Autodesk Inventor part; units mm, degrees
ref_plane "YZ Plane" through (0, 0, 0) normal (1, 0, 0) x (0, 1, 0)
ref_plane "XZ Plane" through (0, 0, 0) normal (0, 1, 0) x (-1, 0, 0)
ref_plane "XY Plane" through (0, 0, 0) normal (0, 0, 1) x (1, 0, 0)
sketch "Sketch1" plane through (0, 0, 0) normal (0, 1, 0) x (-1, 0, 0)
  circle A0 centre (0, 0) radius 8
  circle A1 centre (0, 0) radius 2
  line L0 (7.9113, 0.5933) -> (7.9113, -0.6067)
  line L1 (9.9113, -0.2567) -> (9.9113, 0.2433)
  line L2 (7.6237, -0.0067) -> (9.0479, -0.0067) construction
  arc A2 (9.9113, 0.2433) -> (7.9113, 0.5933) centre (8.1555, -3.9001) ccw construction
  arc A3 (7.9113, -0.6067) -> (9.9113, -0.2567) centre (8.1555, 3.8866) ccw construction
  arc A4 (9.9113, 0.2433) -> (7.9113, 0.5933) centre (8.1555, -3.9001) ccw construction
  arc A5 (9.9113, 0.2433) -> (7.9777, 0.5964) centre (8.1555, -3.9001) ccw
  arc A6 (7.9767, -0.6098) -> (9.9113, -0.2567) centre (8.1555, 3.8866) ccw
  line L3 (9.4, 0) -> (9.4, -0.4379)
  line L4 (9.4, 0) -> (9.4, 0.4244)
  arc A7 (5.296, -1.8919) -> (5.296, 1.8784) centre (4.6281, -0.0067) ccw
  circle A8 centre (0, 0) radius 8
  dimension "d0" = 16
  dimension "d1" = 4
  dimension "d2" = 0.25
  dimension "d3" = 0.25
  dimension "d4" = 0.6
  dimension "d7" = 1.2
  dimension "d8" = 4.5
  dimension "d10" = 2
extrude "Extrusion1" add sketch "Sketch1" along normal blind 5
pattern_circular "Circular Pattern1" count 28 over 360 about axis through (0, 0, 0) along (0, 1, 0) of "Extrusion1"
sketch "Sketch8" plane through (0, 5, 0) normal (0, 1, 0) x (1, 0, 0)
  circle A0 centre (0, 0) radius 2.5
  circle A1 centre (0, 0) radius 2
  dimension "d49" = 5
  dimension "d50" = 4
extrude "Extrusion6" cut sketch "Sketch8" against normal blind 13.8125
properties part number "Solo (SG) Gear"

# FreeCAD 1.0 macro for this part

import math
import FreeCAD as App
import Part
import Sketcher
from FreeCAD import Vector
Q = App.Units.Quantity

doc = App.newDocument("Part")
body = doc.addObject("PartDesign::Body", "Body")

sketch1 = body.newObject("Sketcher::SketchObject", "Sketch")
sketch1.AttachmentSupport = (doc.getObject("XZ_Plane"), [""])
sketch1.MapMode = "FlatFace"
sketch1.addGeometry([
    Part.ArcOfCircle(Part.Circle(Vector(0, 0, 0), Vector(0, 0, 1), 8), math.radians(-175.628375), math.radians(175.724613)),
    Part.ArcOfCircle(Part.Circle(Vector(-8.1555, 3.8866, 0), Vector(0, 0, 1), 4.499954), math.radians(-112.9657), math.radians(-87.722825)),
    Part.LineSegment(Vector(-9.9113, -0.2567, 0), Vector(-9.9113, 0.2433, 0)),
    Part.ArcOfCircle(Part.Circle(Vector(-8.155813, -3.899053, 0), Vector(0, 0, 1), 4.49898), math.radians(87.731084), math.radians(112.966733)),
    Part.Circle(Vector(0, 0, 0), Vector(0, 0, 1), 2),
], False)
sketch1.addConstraint([
    Sketcher.Constraint("Coincident", 0, 1, 1, 2),
    Sketcher.Constraint("Coincident", 1, 1, 2, 1),
    Sketcher.Constraint("Coincident", 2, 2, 3, 2),
    Sketcher.Constraint("Coincident", 3, 1, 0, 2),
    Sketcher.Constraint("Vertical", 2),
    Sketcher.Constraint("Coincident", 0, 3, -1, 1),
    Sketcher.Constraint("Coincident", 4, 3, -1, 1),
    Sketcher.Constraint("Diameter", 4, Q("4 mm")),
    Sketcher.Constraint("Radius", 0, Q("8 mm")),
    Sketcher.Constraint("Radius", 1, Q("4.5 mm")),
    Sketcher.Constraint("DistanceY", 2, 1, 2, 2, Q("0.5 mm")),
    Sketcher.Constraint("Radius", 3, Q("4.499 mm")),
    Sketcher.Constraint("DistanceY", 3, 3, -1, 1, Q("3.899 mm")),
    Sketcher.Constraint("DistanceX", 3, 3, 0, 1, Q("0.179 mm")),
    Sketcher.Constraint("DistanceY", 0, 1, 2, 2, Q("0.853 mm")),
    Sketcher.Constraint("DistanceX", 3, 1, 0, 1, Q("0.001 mm")),
])
pad1 = body.newObject("PartDesign::Pad", "Pad")
pad1.Profile = sketch1
pad1.Length = 5
pad1.Reversed = True
doc.recompute()

polarpattern = body.newObject("PartDesign::PolarPattern", "PolarPattern")
polarpattern.Originals = [pad1]
polarpattern.Axis = (doc.getObject("Y_Axis"), [""])
polarpattern.Angle = 360
polarpattern.Occurrences = 28
body.Tip = polarpattern

sketch2 = body.newObject("Sketcher::SketchObject", "Sketch001")
sketch2.AttachmentSupport = (doc.getObject("XZ_Plane"), [""])
sketch2.MapMode = "FlatFace"
sketch2.AttachmentOffset = App.Placement(Vector(0, 0, -5), App.Rotation())
sketch2.addGeometry([
    Part.Circle(Vector(0, 0, 0), Vector(0, 0, 1), 2.5),
    Part.Circle(Vector(0, 0, 0), Vector(0, 0, 1), 2),
], False)
sketch2.addConstraint([
    Sketcher.Constraint("Coincident", 0, 3, -1, 1),
    Sketcher.Constraint("Coincident", 1, 3, -1, 1),
    Sketcher.Constraint("Diameter", 0, Q("5 mm")),
    Sketcher.Constraint("Diameter", 1, Q("4 mm")),
])
pocket1 = body.newObject("PartDesign::Pocket", "Pocket")
pocket1.Profile = sketch2
pocket1.Length = 13.8125
pocket1.Reversed = True

doc.recompute()
